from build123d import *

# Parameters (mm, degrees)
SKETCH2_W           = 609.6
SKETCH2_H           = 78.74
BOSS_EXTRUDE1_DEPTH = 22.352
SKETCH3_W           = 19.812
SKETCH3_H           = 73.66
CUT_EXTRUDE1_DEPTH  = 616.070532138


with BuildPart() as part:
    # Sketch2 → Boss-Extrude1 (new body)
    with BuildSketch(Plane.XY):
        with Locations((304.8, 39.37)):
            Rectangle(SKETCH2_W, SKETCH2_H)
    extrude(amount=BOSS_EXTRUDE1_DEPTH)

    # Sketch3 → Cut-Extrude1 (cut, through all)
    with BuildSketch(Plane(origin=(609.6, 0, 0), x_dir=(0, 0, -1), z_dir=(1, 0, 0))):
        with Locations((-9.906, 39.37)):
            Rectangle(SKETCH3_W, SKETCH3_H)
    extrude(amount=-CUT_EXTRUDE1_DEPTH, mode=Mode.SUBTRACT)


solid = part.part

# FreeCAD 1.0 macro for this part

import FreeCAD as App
import Part
import Sketcher

V = App.Vector
Q = App.Units.Quantity


def add_polygon(sketch, points):
    """Adds a closed chain of lines whose ends are joined by coincident constraints."""
    first, n = sketch.GeometryCount, len(points)
    for a, b in zip(points, points[1:] + points[:1]):
        sketch.addGeometry(Part.LineSegment(App.Vector(*a, 0), App.Vector(*b, 0)), False)
    for i in range(n):
        sketch.addConstraint(Sketcher.Constraint("Coincident", first + i, 2, first + (i + 1) % n, 1))

doc = App.newDocument("Part")
body = doc.addObject("PartDesign::Body", "Body")

sketch1 = body.newObject("Sketcher::SketchObject", "Sketch")
sketch1.AttachmentSupport = (doc.getObject("XY_Plane"), [""])
sketch1.MapMode = "FlatFace"
add_polygon(sketch1, [(0, 79), (0, 0), (610, 0), (610, 79)])
sketch1.addConstraint([
    Sketcher.Constraint("Vertical", 0),
    Sketcher.Constraint("Horizontal", 1),
    Sketcher.Constraint("Vertical", 2),
    Sketcher.Constraint("Horizontal", 3),
    Sketcher.Constraint("Coincident", 0, 2, -1, 1),
    Sketcher.Constraint("DistanceX", 1, 1, 1, 2, Q("24 in")),
    Sketcher.Constraint("DistanceY", 0, 2, 0, 1, Q("3.1 in")),
])
pad1 = body.newObject("PartDesign::Pad", "Pad")
pad1.Profile = sketch1
pad1.Length = Q("0.88 in")

sketch2 = body.newObject("Sketcher::SketchObject", "Sketch001")
sketch2.AttachmentSupport = (doc.getObject("YZ_Plane"), [""])
sketch2.MapMode = "FlatFace"
sketch2.AttachmentOffset = App.Placement(V(0, 0, 24 * 25.4), App.Rotation())
add_polygon(sketch2, [(76, 20), (3, 20), (3, 0), (76, 0)])
sketch2.addConstraint([
    Sketcher.Constraint("Horizontal", 0),
    Sketcher.Constraint("Vertical", 1),
    Sketcher.Constraint("Horizontal", 2),
    Sketcher.Constraint("Vertical", 3),
    Sketcher.Constraint("PointOnObject", 1, 2, -1),
    Sketcher.Constraint("DistanceX", 0, 2, 0, 1, Q("2.9 in")),
    Sketcher.Constraint("DistanceX", -1, 1, 2, 2, Q("3 in")),
    Sketcher.Constraint("DistanceY", 1, 2, 1, 1, Q("0.78 in")),
])
pocket1 = body.newObject("PartDesign::Pocket", "Pocket")
pocket1.Profile = sketch2
pocket1.Type = "ThroughAll"

doc.recompute()
